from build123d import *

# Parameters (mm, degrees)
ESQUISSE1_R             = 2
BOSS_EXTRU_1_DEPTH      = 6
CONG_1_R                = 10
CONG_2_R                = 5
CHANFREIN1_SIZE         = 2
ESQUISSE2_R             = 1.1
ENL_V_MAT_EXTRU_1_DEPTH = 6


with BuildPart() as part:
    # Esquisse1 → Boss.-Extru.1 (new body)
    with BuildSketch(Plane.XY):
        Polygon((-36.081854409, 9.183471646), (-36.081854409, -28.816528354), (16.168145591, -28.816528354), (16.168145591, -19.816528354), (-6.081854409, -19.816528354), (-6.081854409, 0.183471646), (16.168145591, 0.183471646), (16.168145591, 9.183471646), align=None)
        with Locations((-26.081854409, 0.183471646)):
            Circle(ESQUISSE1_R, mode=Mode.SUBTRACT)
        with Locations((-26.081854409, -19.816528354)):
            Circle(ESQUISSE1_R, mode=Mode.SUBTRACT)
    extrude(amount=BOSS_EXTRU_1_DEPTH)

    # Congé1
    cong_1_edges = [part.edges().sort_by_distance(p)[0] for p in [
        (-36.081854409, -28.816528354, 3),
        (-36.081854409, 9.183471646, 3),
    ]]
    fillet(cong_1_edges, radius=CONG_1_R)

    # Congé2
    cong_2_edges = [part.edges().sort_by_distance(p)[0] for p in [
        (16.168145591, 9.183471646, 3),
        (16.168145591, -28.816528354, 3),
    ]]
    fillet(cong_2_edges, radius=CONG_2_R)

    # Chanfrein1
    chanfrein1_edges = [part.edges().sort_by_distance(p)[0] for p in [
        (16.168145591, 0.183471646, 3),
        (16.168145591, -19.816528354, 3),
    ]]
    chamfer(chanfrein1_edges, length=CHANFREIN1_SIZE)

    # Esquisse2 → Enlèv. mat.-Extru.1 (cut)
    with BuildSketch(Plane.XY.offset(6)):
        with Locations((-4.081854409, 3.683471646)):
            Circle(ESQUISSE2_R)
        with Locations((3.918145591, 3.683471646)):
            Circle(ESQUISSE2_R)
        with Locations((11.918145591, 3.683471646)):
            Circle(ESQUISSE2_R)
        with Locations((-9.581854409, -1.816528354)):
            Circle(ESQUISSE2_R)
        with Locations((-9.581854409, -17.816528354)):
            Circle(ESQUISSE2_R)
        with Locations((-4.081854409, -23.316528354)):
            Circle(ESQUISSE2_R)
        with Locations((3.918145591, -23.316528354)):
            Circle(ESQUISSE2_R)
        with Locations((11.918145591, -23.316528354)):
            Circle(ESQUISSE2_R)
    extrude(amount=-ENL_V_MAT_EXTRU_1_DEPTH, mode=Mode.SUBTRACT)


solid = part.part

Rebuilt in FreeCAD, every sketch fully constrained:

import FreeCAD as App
import Part
import Sketcher
Q = App.Units.Quantity


def edges_at(feature, points):
    """Names of the edges that pass closest to the given points."""
    edges = feature.Shape.Edges
    near = lambda p: min(range(len(edges)), key=lambda i: edges[i].distToShape(Part.Vertex(*p))[0])
    return sorted({f"Edge{near(p) + 1}" for p in points})


def add_polygon(sketch, points):
    """Adds a closed chain of lines whose ends are joined by coincident constraints."""
    first, n = sketch.GeometryCount, len(points)
    for a, b in zip(points, points[1:] + points[:1]):
        sketch.addGeometry(Part.LineSegment(App.Vector(*a, 0), App.Vector(*b, 0)), False)
    for i in range(n):
        sketch.addConstraint(Sketcher.Constraint("Coincident", first + i, 2, first + (i + 1) % n, 1))

doc = App.newDocument("Part")
body = doc.addObject("PartDesign::Body", "Body")

# Sketch on XY plane
sketch1 = body.newObject("Sketcher::SketchObject", "Sketch")
sketch1.AttachmentSupport = (doc.getObject("XY_Plane"), [""])
sketch1.MapMode = "FlatFace"
add_polygon(sketch1, [(-36.1, 9.2), (-36.1, -28.8), (16.2, -28.8), (16.2, -19.8), (-6.1, -19.8), (-6.1, 0.2), (16.2, 0.2), (16.2, 9.2)])  # lines 0-7
sketch1.addGeometry(Part.Circle(App.Vector(-26.1, -19.8, 0), App.Vector(0, 0, 1), 2), False)  # 8
sketch1.addGeometry(Part.Circle(App.Vector(-26.1, 0.2, 0), App.Vector(0, 0, 1), 2), False)  # 9
sketch1.addConstraint(Sketcher.Constraint("Vertical", 0))
sketch1.addConstraint(Sketcher.Constraint("Horizontal", 1))
sketch1.addConstraint(Sketcher.Constraint("Vertical", 2))
sketch1.addConstraint(Sketcher.Constraint("Horizontal", 3))
sketch1.addConstraint(Sketcher.Constraint("Vertical", 4))
sketch1.addConstraint(Sketcher.Constraint("Horizontal", 5))
sketch1.addConstraint(Sketcher.Constraint("Vertical", 6))
sketch1.addConstraint(Sketcher.Constraint("Horizontal", 7))
sketch1.addConstraint(Sketcher.Constraint("Equal", 8, 9))
sketch1.addConstraint(Sketcher.Constraint("Horizontal", 8, 3, 2, 2))
sketch1.addConstraint(Sketcher.Constraint("Horizontal", 9, 3, 4, 2))
sketch1.addConstraint(Sketcher.Constraint("Vertical", 8, 3, 9, 3))
sketch1.addConstraint(Sketcher.Constraint("Vertical", 2, 2, 5, 2))
sketch1.addConstraint(Sketcher.Constraint("Equal", 2, 6))
sketch1.addConstraint(Sketcher.Constraint("Diameter", 8, Q("4 mm")))
sketch1.addConstraint(Sketcher.Constraint("DistanceY", 0, 2, 0, 1, Q("38 mm")))
sketch1.addConstraint(Sketcher.Constraint("DistanceY", 2, 1, 2, 2, Q("9 mm")))
sketch1.addConstraint(Sketcher.Constraint("DistanceX", 0, 2, 8, 3, Q("10 mm")))
sketch1.addConstraint(Sketcher.Constraint("DistanceX", 8, 3, 3, 2, Q("20 mm")))
sketch1.addConstraint(Sketcher.Constraint("DistanceX", 1, 1, 1, 2, Q("52.25 mm")))
sketch1.addConstraint(Sketcher.Constraint("DistanceY", 8, 3, -1, 1, Q("19.816528 mm")))
sketch1.addConstraint(Sketcher.Constraint("DistanceX", 8, 3, -1, 1, Q("26.081854 mm")))
pad1 = body.newObject("PartDesign::Pad", "Pad")
pad1.Profile = sketch1
pad1.Length = 6
doc.recompute()

fillet = body.newObject("PartDesign::Fillet", "Fillet")
fillet.Base = (pad1, edges_at(pad1, [(-36.082, -28.817, 3), (-36.082, 9.183, 3)]))
fillet.Radius = 10
doc.recompute()

fillet2 = body.newObject("PartDesign::Fillet", "Fillet001")
fillet2.Base = (fillet, edges_at(fillet, [(16.168, 9.183, 3), (16.168, -28.817, 3)]))
fillet2.Radius = 5
doc.recompute()

chamfer = body.newObject("PartDesign::Chamfer", "Chamfer")
chamfer.Base = (fillet2, edges_at(fillet2, [(16.168, 0.183, 3), (16.168, -19.817, 3)]))
chamfer.Size = 2

# Sketch on XY plane
sketch2 = body.newObject("Sketcher::SketchObject", "Sketch001")
sketch2.AttachmentSupport = (doc.getObject("XY_Plane"), [""])
sketch2.MapMode = "FlatFace"
sketch2.AttachmentOffset = App.Placement(App.Vector(0, 0, 6), App.Rotation())
sketch2.addGeometry(Part.Circle(App.Vector(-4.1, 3.7, 0), App.Vector(0, 0, 1), 1.1), False)
sketch2.addGeometry(Part.Circle(App.Vector(3.9, 3.7, 0), App.Vector(0, 0, 1), 1.1), False)
sketch2.addGeometry(Part.Circle(App.Vector(11.9, 3.7, 0), App.Vector(0, 0, 1), 1.1), False)
sketch2.addGeometry(Part.Circle(App.Vector(-9.6, -1.8, 0), App.Vector(0, 0, 1), 1.1), False)
sketch2.addGeometry(Part.Circle(App.Vector(-9.6, -17.8, 0), App.Vector(0, 0, 1), 1.1), False)
sketch2.addGeometry(Part.Circle(App.Vector(-4.1, -23.3, 0), App.Vector(0, 0, 1), 1.1), False)
sketch2.addGeometry(Part.Circle(App.Vector(3.9, -23.3, 0), App.Vector(0, 0, 1), 1.1), False)
sketch2.addGeometry(Part.Circle(App.Vector(11.9, -23.3, 0), App.Vector(0, 0, 1), 1.1), False)
sketch2.addConstraint(Sketcher.Constraint("Equal", 0, 1))
sketch2.addConstraint(Sketcher.Constraint("Equal", 1, 2))
sketch2.addConstraint(Sketcher.Constraint("Equal", 2, 3))
sketch2.addConstraint(Sketcher.Constraint("Equal", 3, 4))
sketch2.addConstraint(Sketcher.Constraint("Equal", 4, 5))
sketch2.addConstraint(Sketcher.Constraint("Equal", 5, 6))
sketch2.addConstraint(Sketcher.Constraint("Equal", 6, 7))
sketch2.addConstraint(Sketcher.Constraint("Horizontal", 0, 3, 1, 3))
sketch2.addConstraint(Sketcher.Constraint("Horizontal", 1, 3, 2, 3))
sketch2.addConstraint(Sketcher.Constraint("Horizontal", 5, 3, 6, 3))
sketch2.addConstraint(Sketcher.Constraint("Horizontal", 6, 3, 7, 3))
sketch2.addConstraint(Sketcher.Constraint("Vertical", 3, 3, 4, 3))
sketch2.addConstraint(Sketcher.Constraint("Vertical", 0, 3, 5, 3))
sketch2.addConstraint(Sketcher.Constraint("Vertical", 1, 3, 6, 3))
sketch2.addConstraint(Sketcher.Constraint("Vertical", 2, 3, 7, 3))
sketch2.addConstraint(Sketcher.Constraint("Diameter", 0, Q("2.2 mm")))
sketch2.addConstraint(Sketcher.Constraint("DistanceX", 0, 3, 1, 3, Q("8 mm")))
sketch2.addConstraint(Sketcher.Constraint("DistanceX", 1, 3, 2, 3, Q("8 mm")))
sketch2.addConstraint(Sketcher.Constraint("DistanceY", 4, 3, 3, 3, Q("16 mm")))
sketch2.addConstraint(Sketcher.Constraint("DistanceY", 5, 3, 0, 3, Q("27 mm")))
sketch2.addConstraint(Sketcher.Constraint("DistanceX", 3, 3, 0, 3, Q("5.5 mm")))
sketch2.addConstraint(Sketcher.Constraint("DistanceY", 3, 3, 0, 3, Q("5.5 mm")))
sketch2.addConstraint(Sketcher.Constraint("DistanceY", -1, 1, 0, 3, Q("3.683472 mm")))
sketch2.addConstraint(Sketcher.Constraint("DistanceX", 0, 3, -1, 1, Q("4.081854 mm")))
pocket1 = body.newObject("PartDesign::Pocket", "Pocket")
pocket1.Profile = sketch2
pocket1.Length = 6

doc.recompute()
